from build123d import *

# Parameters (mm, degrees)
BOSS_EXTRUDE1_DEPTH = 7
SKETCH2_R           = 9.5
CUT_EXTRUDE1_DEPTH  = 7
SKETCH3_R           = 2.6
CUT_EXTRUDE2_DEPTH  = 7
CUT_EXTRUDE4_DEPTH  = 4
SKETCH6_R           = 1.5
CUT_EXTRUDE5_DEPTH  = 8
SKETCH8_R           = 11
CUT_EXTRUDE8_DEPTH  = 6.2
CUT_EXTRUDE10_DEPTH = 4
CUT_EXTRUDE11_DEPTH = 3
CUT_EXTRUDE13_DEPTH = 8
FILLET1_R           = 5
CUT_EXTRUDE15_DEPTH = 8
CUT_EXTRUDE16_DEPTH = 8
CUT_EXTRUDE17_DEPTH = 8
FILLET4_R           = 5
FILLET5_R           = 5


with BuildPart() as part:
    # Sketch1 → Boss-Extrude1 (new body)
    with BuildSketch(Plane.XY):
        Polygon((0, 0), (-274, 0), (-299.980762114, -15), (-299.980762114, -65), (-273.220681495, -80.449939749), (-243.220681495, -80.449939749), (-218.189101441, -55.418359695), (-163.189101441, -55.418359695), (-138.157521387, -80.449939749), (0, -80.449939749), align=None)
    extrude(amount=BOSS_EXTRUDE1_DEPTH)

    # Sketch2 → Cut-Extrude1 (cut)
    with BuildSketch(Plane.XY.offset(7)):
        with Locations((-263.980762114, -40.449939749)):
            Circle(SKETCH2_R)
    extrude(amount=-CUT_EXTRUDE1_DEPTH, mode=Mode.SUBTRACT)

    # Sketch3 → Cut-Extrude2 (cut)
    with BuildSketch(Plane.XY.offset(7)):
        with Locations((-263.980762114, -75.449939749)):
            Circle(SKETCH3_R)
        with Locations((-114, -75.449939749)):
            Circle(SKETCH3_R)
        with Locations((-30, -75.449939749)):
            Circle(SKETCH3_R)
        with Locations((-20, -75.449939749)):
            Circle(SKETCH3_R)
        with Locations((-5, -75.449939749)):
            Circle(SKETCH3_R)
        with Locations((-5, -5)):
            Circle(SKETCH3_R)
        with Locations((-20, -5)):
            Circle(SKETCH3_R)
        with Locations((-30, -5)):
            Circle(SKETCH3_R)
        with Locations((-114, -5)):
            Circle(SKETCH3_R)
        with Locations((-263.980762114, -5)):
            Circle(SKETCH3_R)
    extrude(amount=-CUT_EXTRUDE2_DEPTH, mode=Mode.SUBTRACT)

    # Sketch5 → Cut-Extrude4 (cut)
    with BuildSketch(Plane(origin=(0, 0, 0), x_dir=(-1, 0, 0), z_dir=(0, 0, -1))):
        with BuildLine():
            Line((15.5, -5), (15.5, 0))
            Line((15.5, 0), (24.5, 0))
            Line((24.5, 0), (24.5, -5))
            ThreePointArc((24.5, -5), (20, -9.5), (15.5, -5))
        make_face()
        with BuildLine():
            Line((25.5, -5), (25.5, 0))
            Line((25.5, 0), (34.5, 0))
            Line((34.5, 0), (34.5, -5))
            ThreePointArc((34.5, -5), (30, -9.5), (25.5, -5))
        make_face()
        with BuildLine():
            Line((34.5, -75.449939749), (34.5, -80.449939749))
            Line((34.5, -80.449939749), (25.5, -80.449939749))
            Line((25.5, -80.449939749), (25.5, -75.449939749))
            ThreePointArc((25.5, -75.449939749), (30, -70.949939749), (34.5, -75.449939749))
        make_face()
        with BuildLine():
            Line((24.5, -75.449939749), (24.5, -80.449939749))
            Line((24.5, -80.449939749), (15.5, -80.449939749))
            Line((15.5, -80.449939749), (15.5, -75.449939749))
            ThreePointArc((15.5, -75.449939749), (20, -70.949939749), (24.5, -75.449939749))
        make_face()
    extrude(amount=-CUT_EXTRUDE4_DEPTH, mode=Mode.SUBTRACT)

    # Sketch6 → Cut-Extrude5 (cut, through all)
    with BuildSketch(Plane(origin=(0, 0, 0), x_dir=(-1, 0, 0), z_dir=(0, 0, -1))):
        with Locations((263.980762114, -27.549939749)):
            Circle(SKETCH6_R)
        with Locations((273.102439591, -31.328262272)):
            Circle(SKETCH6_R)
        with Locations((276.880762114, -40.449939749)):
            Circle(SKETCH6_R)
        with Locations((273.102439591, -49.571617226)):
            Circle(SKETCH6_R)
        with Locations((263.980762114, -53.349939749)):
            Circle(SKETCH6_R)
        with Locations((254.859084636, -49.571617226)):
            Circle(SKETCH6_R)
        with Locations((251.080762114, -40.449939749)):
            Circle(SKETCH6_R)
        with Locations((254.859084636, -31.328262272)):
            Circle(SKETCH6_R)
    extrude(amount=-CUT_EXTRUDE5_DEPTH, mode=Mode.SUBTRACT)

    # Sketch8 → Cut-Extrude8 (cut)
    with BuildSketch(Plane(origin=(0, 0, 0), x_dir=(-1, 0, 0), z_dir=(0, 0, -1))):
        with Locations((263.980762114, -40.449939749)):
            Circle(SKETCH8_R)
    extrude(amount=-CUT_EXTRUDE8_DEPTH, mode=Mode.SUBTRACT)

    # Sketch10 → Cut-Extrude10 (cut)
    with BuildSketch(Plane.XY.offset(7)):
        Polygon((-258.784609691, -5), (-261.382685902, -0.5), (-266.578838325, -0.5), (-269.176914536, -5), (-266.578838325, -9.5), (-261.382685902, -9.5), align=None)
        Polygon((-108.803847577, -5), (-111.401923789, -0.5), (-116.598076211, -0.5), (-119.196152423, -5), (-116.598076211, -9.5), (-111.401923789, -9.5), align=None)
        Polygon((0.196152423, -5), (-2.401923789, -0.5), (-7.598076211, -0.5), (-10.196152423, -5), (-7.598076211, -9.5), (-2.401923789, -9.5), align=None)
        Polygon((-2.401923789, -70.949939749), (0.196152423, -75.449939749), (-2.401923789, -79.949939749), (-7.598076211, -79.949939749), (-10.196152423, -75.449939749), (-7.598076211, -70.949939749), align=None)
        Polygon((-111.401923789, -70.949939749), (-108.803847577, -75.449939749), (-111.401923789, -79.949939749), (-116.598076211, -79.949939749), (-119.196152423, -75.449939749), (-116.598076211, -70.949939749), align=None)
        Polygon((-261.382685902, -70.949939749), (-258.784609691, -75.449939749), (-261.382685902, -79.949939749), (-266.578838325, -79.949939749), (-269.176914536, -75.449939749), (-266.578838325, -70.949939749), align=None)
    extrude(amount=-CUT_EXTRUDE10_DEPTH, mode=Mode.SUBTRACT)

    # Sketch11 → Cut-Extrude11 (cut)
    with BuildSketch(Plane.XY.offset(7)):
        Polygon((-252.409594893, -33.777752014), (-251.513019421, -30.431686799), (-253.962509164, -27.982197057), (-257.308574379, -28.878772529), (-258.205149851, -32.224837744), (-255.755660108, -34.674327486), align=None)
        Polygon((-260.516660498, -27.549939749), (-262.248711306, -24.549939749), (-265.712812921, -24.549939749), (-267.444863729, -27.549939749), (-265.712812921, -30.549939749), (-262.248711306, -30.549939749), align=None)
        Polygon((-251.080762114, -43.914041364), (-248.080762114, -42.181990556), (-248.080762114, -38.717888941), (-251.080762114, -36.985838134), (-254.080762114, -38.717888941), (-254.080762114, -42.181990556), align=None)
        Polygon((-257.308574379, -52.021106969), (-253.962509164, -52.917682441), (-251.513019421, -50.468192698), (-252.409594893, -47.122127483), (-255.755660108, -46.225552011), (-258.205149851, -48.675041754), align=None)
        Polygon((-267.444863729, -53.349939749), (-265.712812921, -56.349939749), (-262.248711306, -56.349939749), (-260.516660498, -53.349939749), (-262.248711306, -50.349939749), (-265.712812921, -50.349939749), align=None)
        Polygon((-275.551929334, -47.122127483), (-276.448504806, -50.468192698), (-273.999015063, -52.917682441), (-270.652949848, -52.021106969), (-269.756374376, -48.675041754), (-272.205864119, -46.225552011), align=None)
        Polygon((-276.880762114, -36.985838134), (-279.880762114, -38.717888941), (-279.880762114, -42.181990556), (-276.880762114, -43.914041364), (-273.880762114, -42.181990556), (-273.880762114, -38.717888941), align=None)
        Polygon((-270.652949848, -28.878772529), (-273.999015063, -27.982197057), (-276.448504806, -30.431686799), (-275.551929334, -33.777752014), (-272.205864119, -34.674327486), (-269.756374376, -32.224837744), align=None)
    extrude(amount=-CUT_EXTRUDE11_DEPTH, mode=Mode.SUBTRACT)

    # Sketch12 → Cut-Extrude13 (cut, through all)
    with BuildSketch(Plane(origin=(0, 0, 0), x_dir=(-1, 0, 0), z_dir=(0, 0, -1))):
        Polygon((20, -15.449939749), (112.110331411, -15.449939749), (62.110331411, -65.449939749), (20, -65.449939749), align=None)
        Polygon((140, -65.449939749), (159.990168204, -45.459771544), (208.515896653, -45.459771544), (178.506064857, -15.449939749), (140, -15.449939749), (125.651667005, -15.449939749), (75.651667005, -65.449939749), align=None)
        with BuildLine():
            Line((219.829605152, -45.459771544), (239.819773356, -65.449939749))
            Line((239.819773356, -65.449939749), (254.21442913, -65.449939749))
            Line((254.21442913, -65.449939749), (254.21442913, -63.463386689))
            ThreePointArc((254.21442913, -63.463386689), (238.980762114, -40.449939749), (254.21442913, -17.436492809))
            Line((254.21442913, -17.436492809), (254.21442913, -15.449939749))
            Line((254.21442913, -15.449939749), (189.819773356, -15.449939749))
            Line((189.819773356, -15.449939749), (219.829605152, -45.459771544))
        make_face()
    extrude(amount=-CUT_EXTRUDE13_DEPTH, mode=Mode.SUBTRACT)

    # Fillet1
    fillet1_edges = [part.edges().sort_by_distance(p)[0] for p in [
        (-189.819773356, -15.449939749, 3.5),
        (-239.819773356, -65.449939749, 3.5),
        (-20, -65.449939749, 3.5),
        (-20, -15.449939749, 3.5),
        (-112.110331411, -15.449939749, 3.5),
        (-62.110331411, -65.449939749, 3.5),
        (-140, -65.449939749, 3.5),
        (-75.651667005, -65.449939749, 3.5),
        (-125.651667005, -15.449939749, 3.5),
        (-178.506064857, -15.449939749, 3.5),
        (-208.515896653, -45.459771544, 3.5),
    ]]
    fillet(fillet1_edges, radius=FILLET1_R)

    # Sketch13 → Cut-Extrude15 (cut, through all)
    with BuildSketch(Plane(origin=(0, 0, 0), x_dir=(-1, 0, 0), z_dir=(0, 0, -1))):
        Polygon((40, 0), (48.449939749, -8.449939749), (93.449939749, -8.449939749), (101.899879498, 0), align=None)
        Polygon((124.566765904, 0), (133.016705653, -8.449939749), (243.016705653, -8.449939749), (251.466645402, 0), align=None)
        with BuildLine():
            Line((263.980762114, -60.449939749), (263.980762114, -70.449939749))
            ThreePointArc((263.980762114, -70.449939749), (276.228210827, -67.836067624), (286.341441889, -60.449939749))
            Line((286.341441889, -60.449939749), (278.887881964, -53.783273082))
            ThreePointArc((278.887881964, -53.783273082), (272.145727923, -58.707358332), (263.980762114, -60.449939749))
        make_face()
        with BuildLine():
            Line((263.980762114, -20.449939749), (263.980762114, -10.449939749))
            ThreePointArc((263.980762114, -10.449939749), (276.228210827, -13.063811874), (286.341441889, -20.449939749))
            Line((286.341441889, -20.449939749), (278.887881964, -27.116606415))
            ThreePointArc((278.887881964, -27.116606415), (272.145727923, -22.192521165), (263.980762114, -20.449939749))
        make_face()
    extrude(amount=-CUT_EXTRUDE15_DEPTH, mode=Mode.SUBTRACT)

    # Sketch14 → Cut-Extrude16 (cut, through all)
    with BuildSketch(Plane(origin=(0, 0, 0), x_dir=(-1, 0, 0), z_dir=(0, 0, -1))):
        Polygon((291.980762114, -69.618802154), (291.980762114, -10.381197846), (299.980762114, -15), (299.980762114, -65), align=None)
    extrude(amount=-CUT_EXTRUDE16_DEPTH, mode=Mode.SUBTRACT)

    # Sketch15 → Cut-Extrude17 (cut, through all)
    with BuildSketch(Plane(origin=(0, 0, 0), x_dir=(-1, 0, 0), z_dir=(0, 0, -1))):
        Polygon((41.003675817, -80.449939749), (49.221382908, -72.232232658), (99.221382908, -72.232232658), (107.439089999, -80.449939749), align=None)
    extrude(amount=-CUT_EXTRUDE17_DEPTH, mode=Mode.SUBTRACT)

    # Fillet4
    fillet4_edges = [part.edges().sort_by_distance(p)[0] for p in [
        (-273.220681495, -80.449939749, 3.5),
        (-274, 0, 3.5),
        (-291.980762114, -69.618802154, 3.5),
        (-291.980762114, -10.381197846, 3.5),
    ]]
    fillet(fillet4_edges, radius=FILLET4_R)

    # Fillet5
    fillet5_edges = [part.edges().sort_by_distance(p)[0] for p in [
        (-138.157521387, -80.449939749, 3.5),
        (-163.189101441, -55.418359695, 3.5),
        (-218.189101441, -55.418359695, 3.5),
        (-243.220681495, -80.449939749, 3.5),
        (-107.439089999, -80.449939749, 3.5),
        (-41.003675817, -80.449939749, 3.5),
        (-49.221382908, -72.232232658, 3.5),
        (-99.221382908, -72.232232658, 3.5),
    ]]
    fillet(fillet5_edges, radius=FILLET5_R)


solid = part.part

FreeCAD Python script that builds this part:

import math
import FreeCAD as App
import Part
import Sketcher

V = App.Vector
Q = App.Units.Quantity


def edges_at(feature, points):
    """Names of the edges that pass closest to the given points."""
    edges = feature.Shape.Edges
    near = lambda p: min(range(len(edges)), key=lambda i: edges[i].distToShape(Part.Vertex(*p))[0])
    return sorted({f"Edge{near(p) + 1}" for p in points})

doc = App.newDocument("Part")
params = doc.addObject("Spreadsheet::Sheet", "Params")
for row, (alias, value) in enumerate([
    ("sketch1_width", "274 mm"),
    ("sketch1_width2", "30 mm"),
    ("sketch1_width3", "55 mm"),
    ("sketch1_height", "50 mm"),
    ("sketch1_length", "30 mm"),
    ("pad1_length", "7 mm"),
    ("sketch2_diameter", "19 mm"),
    ("pocket1_length", "7 mm"),
    ("sketch3_diameter", "5.2 mm"),
    ("pocket2_length", "7 mm"),
    ("sketch4_radius", "4.5 mm"),
    ("sketch4_height", "5 mm"),
    ("pocket3_length", "4 mm"),
    ("sketch5_diameter", "3 mm"),
    ("sketch6_diameter", "22 mm"),
    ("pocket5_length", "6.2 mm"),
    ("pocket6_length", "4 mm"),
    ("pocket7_length", "3 mm"),
    ("sketch9_radius", "25 mm"),
    ("sketch9_height", "50 mm"),
    ("fillet_radius", "5 mm"),
    ("sketch10_radius", "30 mm"),
    ("sketch10_radius2", "20 mm"),
    ("sketch10_width", "45 mm"),
    ("sketch10_width2", "110 mm"),
    ("sketch11_height", "50 mm"),
    ("sketch12_width", "50 mm"),
    ("fillet2_radius", "5 mm"),
    ("fillet3_radius", "5 mm"),
], start=1):
    params.set(f"A{row}", alias)
    params.set(f"B{row}", "=" + value)
    params.setAlias(f"B{row}", alias)

body = doc.addObject("PartDesign::Body", "Body")

sketch1 = body.newObject("Sketcher::SketchObject", "Sketch")
sketch1.AttachmentSupport = (doc.getObject("XY_Plane"), [""])
sketch1.MapMode = "FlatFace"
sketch1.addGeometry([
    Part.LineSegment(V(0, 0, 0), V(-274, 0, 0)),
    Part.LineSegment(V(-274, 0, 0), V(-300, -15, 0)),
    Part.LineSegment(V(-300, -15, 0), V(-300, -65, 0)),
    Part.LineSegment(V(-300, -65, 0), V(-273, -80, 0)),
    Part.LineSegment(V(-273, -80, 0), V(-243, -80, 0)),
    Part.LineSegment(V(-243, -80, 0), V(-218, -55, 0)),
    Part.LineSegment(V(-218, -55, 0), V(-163, -55, 0)),
    Part.LineSegment(V(-163, -55, 0), V(-138, -80, 0)),
    Part.LineSegment(V(-138, -80, 0), V(0, -80, 0)),
    Part.LineSegment(V(0, -80, 0), V(0, 0, 0)),
], False)
sketch1.addConstraint([
    Sketcher.Constraint("Coincident", 0, 2, 1, 1),
    Sketcher.Constraint("Coincident", 1, 2, 2, 1),
    Sketcher.Constraint("Coincident", 2, 2, 3, 1),
    Sketcher.Constraint("Coincident", 3, 2, 4, 1),
    Sketcher.Constraint("Coincident", 4, 2, 5, 1),
    Sketcher.Constraint("Coincident", 5, 2, 6, 1),
    Sketcher.Constraint("Coincident", 6, 2, 7, 1),
    Sketcher.Constraint("Coincident", 7, 2, 8, 1),
    Sketcher.Constraint("Coincident", 8, 2, 9, 1),
    Sketcher.Constraint("Coincident", 9, 2, 0, 1),
    Sketcher.Constraint("Horizontal", 0),
    Sketcher.Constraint("Vertical", 2),
    Sketcher.Constraint("Horizontal", 4),
    Sketcher.Constraint("Horizontal", 6),
    Sketcher.Constraint("Horizontal", 8),
    Sketcher.Constraint("Vertical", 9),
    Sketcher.Constraint("Coincident", 9, 2, -1, 1),
    Sketcher.Constraint("Perpendicular", 5, 7),
    Sketcher.Constraint("Horizontal", 4, 2, 7, 2),
    Sketcher.Constraint("Equal", 5, 7),
    Sketcher.Constraint("DistanceX", 0, 2, 0, 1, 274.0),
    Sketcher.Constraint("DistanceX", 4, 1, 4, 2, 30.0),
    Sketcher.Constraint("DistanceX", 6, 1, 6, 2, 55.0),
    Sketcher.Constraint("DistanceY", 2, 2, 2, 1, 50.0),
    Sketcher.Constraint("Angle", 1, Q("-150 deg")),
    Sketcher.Constraint("Angle", 3, Q("-30 deg")),
    Sketcher.Constraint("Distance", 1, 30.0),
    Sketcher.Constraint("Distance", 5, 35.4),
    Sketcher.Constraint("DistanceX", 8, 1, 8, 2, 138.157521),
])
sketch1.setExpression("Constraints[20]", "Params.sketch1_width")
sketch1.setExpression("Constraints[21]", "Params.sketch1_width2")
sketch1.setExpression("Constraints[22]", "Params.sketch1_width3")
sketch1.setExpression("Constraints[23]", "Params.sketch1_height")
sketch1.setExpression("Constraints[26]", "Params.sketch1_length")
pad1 = body.newObject("PartDesign::Pad", "Pad")
pad1.Profile = sketch1
pad1.setExpression("Length", "Params.pad1_length")

sketch2 = body.newObject("Sketcher::SketchObject", "Sketch001")
sketch2.AttachmentSupport = (doc.getObject("XY_Plane"), [""])
sketch2.MapMode = "FlatFace"
sketch2.AttachmentOffset = App.Placement(V(0, 0, 7), App.Rotation())
sketch2.addGeometry(Part.Circle(V(-264, -40, 0), V(0, 0, 1), 10), False)
sketch2.addConstraint([
    Sketcher.Constraint("Diameter", 0, 19.0),
    Sketcher.Constraint("DistanceY", 0, 3, -1, 1, 40.44994),
    Sketcher.Constraint("DistanceX", 0, 3, -1, 1, 263.980762),
])
sketch2.setExpression("Constraints[0]", "Params.sketch2_diameter")
pocket1 = body.newObject("PartDesign::Pocket", "Pocket")
pocket1.Profile = sketch2
pocket1.setExpression("Length", "Params.pocket1_length")

sketch3 = body.newObject("Sketcher::SketchObject", "Sketch002")
sketch3.AttachmentSupport = (doc.getObject("XY_Plane"), [""])
sketch3.MapMode = "FlatFace"
sketch3.AttachmentOffset = App.Placement(V(0, 0, 7), App.Rotation())
sketch3.addGeometry([
    Part.Circle(V(-264, -75.4, 0), V(0, 0, 1), 2.6),
    Part.Circle(V(-114, -75.4, 0), V(0, 0, 1), 2.6),
    Part.Circle(V(-30, -75.4, 0), V(0, 0, 1), 2.6),
    Part.Circle(V(-20, -75.4, 0), V(0, 0, 1), 2.6),
    Part.Circle(V(-5, -75.4, 0), V(0, 0, 1), 2.6),
    Part.Circle(V(-5, -5, 0), V(0, 0, 1), 2.6),
    Part.Circle(V(-20, -5, 0), V(0, 0, 1), 2.6),
    Part.Circle(V(-30, -5, 0), V(0, 0, 1), 2.6),
    Part.Circle(V(-114, -5, 0), V(0, 0, 1), 2.6),
    Part.Circle(V(-264, -5, 0), V(0, 0, 1), 2.6),
], False)
sketch3.addConstraint([
    Sketcher.Constraint("Equal", 0, 1),
    Sketcher.Constraint("Equal", 1, 2),
    Sketcher.Constraint("Equal", 2, 3),
    Sketcher.Constraint("Equal", 3, 4),
    Sketcher.Constraint("Equal", 4, 5),
    Sketcher.Constraint("Equal", 5, 6),
    Sketcher.Constraint("Equal", 6, 7),
    Sketcher.Constraint("Equal", 7, 8),
    Sketcher.Constraint("Equal", 8, 9),
    Sketcher.Constraint("Horizontal", 0, 3, 1, 3),
    Sketcher.Constraint("Horizontal", 1, 3, 2, 3),
    Sketcher.Constraint("Horizontal", 2, 3, 3, 3),
    Sketcher.Constraint("Horizontal", 3, 3, 4, 3),
    Sketcher.Constraint("Horizontal", 5, 3, 6, 3),
    Sketcher.Constraint("Horizontal", 6, 3, 7, 3),
    Sketcher.Constraint("Horizontal", 7, 3, 8, 3),
    Sketcher.Constraint("Horizontal", 8, 3, 9, 3),
    Sketcher.Constraint("Vertical", 4, 3, 5, 3),
    Sketcher.Constraint("Vertical", 3, 3, 6, 3),
    Sketcher.Constraint("Vertical", 2, 3, 7, 3),
    Sketcher.Constraint("Vertical", 1, 3, 8, 3),
    Sketcher.Constraint("Vertical", 0, 3, 9, 3),
    Sketcher.Constraint("Diameter", 0, 5.2),
    Sketcher.Constraint("DistanceX", 1, 3, -1, 1, 114.0),
    Sketcher.Constraint("DistanceX", 2, 3, -1, 1, 30.0),
    Sketcher.Constraint("DistanceX", 3, 3, -1, 1, 20.0),
    Sketcher.Constraint("DistanceX", 4, 3, -1, 1, 5.0),
    Sketcher.Constraint("DistanceY", 5, 3, -1, 1, 5.0),
    Sketcher.Constraint("DistanceY", 0, 3, -1, 1, 75.44994),
    Sketcher.Constraint("DistanceX", 0, 3, -1, 1, 263.980762),
])
sketch3.setExpression("Constraints[22]", "Params.sketch3_diameter")
pocket2 = body.newObject("PartDesign::Pocket", "Pocket001")
pocket2.Profile = sketch3
pocket2.setExpression("Length", "Params.pocket2_length")

sketch4 = body.newObject("Sketcher::SketchObject", "Sketch003")
sketch4.AttachmentSupport = (doc.getObject("XY_Plane"), [""])
sketch4.MapMode = "FlatFace"
sketch4.addGeometry([
    Part.LineSegment(V(-15.5, 0, 0), V(-15.5, -5, 0)),
    Part.ArcOfCircle(Part.Circle(V(-20, -5, 0), V(0, 0, 1), 4.5), math.radians(180), math.radians(360)),
    Part.LineSegment(V(-24.5, -5, 0), V(-24.5, 0, 0)),
    Part.LineSegment(V(-24.5, 0, 0), V(-15.5, 0, 0)),
    Part.LineSegment(V(-25.5, 0, 0), V(-25.5, -5, 0)),
    Part.ArcOfCircle(Part.Circle(V(-30, -5, 0), V(0, 0, 1), 4.5), math.radians(180), math.radians(360)),
    Part.LineSegment(V(-34.5, -5, 0), V(-34.5, 0, 0)),
    Part.LineSegment(V(-34.5, 0, 0), V(-25.5, 0, 0)),
    Part.LineSegment(V(-34.5, -80.4, 0), V(-34.5, -75.4, 0)),
    Part.ArcOfCircle(Part.Circle(V(-30, -75.4, 0), V(0, 0, 1), 4.5), math.radians(0), math.radians(180)),
    Part.LineSegment(V(-25.5, -75.4, 0), V(-25.5, -80.4, 0)),
    Part.LineSegment(V(-25.5, -80.4, 0), V(-34.5, -80.4, 0)),
    Part.LineSegment(V(-24.5, -80.4, 0), V(-24.5, -75.4, 0)),
    Part.ArcOfCircle(Part.Circle(V(-20, -75.4, 0), V(0, 0, 1), 4.5), math.radians(0), math.radians(180)),
    Part.LineSegment(V(-15.5, -75.4, 0), V(-15.5, -80.4, 0)),
    Part.LineSegment(V(-15.5, -80.4, 0), V(-24.5, -80.4, 0)),
], False)
sketch4.addConstraint([
    Sketcher.Constraint("Tangent", 0, 2, 1, 2),
    Sketcher.Constraint("Tangent", 1, 1, 2, 1),
    Sketcher.Constraint("Coincident", 2, 2, 3, 1),
    Sketcher.Constraint("Coincident", 3, 2, 0, 1),
    Sketcher.Constraint("Tangent", 4, 2, 5, 2),
    Sketcher.Constraint("Tangent", 5, 1, 6, 1),
    Sketcher.Constraint("Coincident", 6, 2, 7, 1),
    Sketcher.Constraint("Coincident", 7, 2, 4, 1),
    Sketcher.Constraint("Tangent", 8, 2, 9, 2),
    Sketcher.Constraint("Tangent", 9, 1, 10, 1),
    Sketcher.Constraint("Coincident", 10, 2, 11, 1),
    Sketcher.Constraint("Coincident", 11, 2, 8, 1),
    Sketcher.Constraint("Tangent", 12, 2, 13, 2),
    Sketcher.Constraint("Tangent", 13, 1, 14, 1),
    Sketcher.Constraint("Coincident", 14, 2, 15, 1),
    Sketcher.Constraint("Coincident", 15, 2, 12, 1),
    Sketcher.Constraint("Vertical", 0),
    Sketcher.Constraint("Vertical", 2),
    Sketcher.Constraint("Horizontal", 3),
    Sketcher.Constraint("Vertical", 4),
    Sketcher.Constraint("Vertical", 6),
    Sketcher.Constraint("Horizontal", 7),
    Sketcher.Constraint("Vertical", 8),
    Sketcher.Constraint("Vertical", 10),
    Sketcher.Constraint("Horizontal", 11),
    Sketcher.Constraint("Vertical", 12),
    Sketcher.Constraint("Vertical", 14),
    Sketcher.Constraint("Horizontal", 15),
    Sketcher.Constraint("Equal", 1, 5),
    Sketcher.Constraint("Equal", 5, 9),
    Sketcher.Constraint("Equal", 9, 13),
    Sketcher.Constraint("PointOnObject", 2, 2, -1),
    Sketcher.Constraint("PointOnObject", 6, 2, -1),
    Sketcher.Constraint("Horizontal", 1, 3, 5, 3),
    Sketcher.Constraint("Horizontal", 9, 3, 13, 3),
    Sketcher.Constraint("Horizontal", 11, 2, 14, 2),
    Sketcher.Constraint("Vertical", 5, 3, 9, 3),
    Sketcher.Constraint("Vertical", 1, 3, 13, 3),
    Sketcher.Constraint("Equal", 6, 8),
    Sketcher.Constraint("Radius", 1, 4.5),
    Sketcher.Constraint("DistanceY", 0, 2, 0, 1, 5.0),
    Sketcher.Constraint("DistanceX", 1, 3, -1, 1, 20.0),
    Sketcher.Constraint("DistanceX", 5, 3, -1, 1, 30.0),
    Sketcher.Constraint("DistanceY", 9, 3, -1, 1, 75.44994),
])
sketch4.setExpression("Constraints[39]", "Params.sketch4_radius")
sketch4.setExpression("Constraints[40]", "Params.sketch4_height")
pocket3 = body.newObject("PartDesign::Pocket", "Pocket002")
pocket3.Profile = sketch4
pocket3.setExpression("Length", "Params.pocket3_length")
pocket3.Reversed = True

sketch5 = body.newObject("Sketcher::SketchObject", "Sketch004")
sketch5.AttachmentSupport = (doc.getObject("XY_Plane"), [""])
sketch5.MapMode = "FlatFace"
sketch5.addGeometry([
    Part.Circle(V(-264, -27.5, 0), V(0, 0, 1), 1.5),
    Part.Circle(V(-273.1, -31.3, 0), V(0, 0, 1), 1.5),
    Part.Circle(V(-276.9, -40.4, 0), V(0, 0, 1), 1.5),
    Part.Circle(V(-273.1, -49.6, 0), V(0, 0, 1), 1.5),
    Part.Circle(V(-264, -53.3, 0), V(0, 0, 1), 1.5),
    Part.Circle(V(-254.9, -49.6, 0), V(0, 0, 1), 1.5),
    Part.Circle(V(-251.1, -40.4, 0), V(0, 0, 1), 1.5),
    Part.Circle(V(-254.9, -31.3, 0), V(0, 0, 1), 1.5),
], False)
sketch5.addConstraint([
    Sketcher.Constraint("Equal", 0, 1),
    Sketcher.Constraint("Equal", 1, 2),
    Sketcher.Constraint("Equal", 2, 3),
    Sketcher.Constraint("Equal", 3, 4),
    Sketcher.Constraint("Equal", 4, 5),
    Sketcher.Constraint("Equal", 5, 6),
    Sketcher.Constraint("Equal", 6, 7),
    Sketcher.Constraint("Horizontal", 3, 3, 5, 3),
    Sketcher.Constraint("Horizontal", 2, 3, 6, 3),
    Sketcher.Constraint("Horizontal", 1, 3, 7, 3),
    Sketcher.Constraint("Vertical", 1, 3, 3, 3),
    Sketcher.Constraint("Vertical", 0, 3, 4, 3),
    Sketcher.Constraint("Vertical", 5, 3, 7, 3),
    Sketcher.Constraint("Diameter", 0, 3.0),
    Sketcher.Constraint("DistanceX", 2, 3, 0, 3, 12.9),
    Sketcher.Constraint("DistanceY", 2, 3, 0, 3, 12.9),
    Sketcher.Constraint("DistanceY", 4, 3, 2, 3, 12.9),
    Sketcher.Constraint("DistanceX", 4, 3, 6, 3, 12.9),
    Sketcher.Constraint("DistanceY", 0, 3, -1, 1, 27.54994),
    Sketcher.Constraint("DistanceX", 1, 3, -1, 1, 273.10244),
    Sketcher.Constraint("DistanceX", 0, 3, -1, 1, 263.980762),
    Sketcher.Constraint("DistanceY", 1, 3, -1, 1, 31.328262),
    Sketcher.Constraint("DistanceY", 3, 3, -1, 1, 49.571617),
    Sketcher.Constraint("DistanceX", 5, 3, -1, 1, 254.859085),
])
sketch5.setExpression("Constraints[13]", "Params.sketch5_diameter")
pocket4 = body.newObject("PartDesign::Pocket", "Pocket003")
pocket4.Profile = sketch5
pocket4.Type = "ThroughAll"
pocket4.Reversed = True

sketch6 = body.newObject("Sketcher::SketchObject", "Sketch005")
sketch6.AttachmentSupport = (doc.getObject("XY_Plane"), [""])
sketch6.MapMode = "FlatFace"
sketch6.addGeometry(Part.Circle(V(-264, -40, 0), V(0, 0, 1), 11), False)
sketch6.addConstraint([
    Sketcher.Constraint("Diameter", 0, 22.0),
    Sketcher.Constraint("DistanceY", 0, 3, -1, 1, 40.44994),
    Sketcher.Constraint("DistanceX", 0, 3, -1, 1, 263.980762),
])
sketch6.setExpression("Constraints[0]", "Params.sketch6_diameter")
pocket5 = body.newObject("PartDesign::Pocket", "Pocket004")
pocket5.Profile = sketch6
pocket5.setExpression("Length", "Params.pocket5_length")
pocket5.Reversed = True

sketch7 = body.newObject("Sketcher::SketchObject", "Sketch006")
sketch7.AttachmentSupport = (doc.getObject("XY_Plane"), [""])
sketch7.MapMode = "FlatFace"
sketch7.AttachmentOffset = App.Placement(V(0, 0, 7), App.Rotation())
sketch7.addGeometry([
    Part.LineSegment(V(-259, -5, 0), V(-261, 0, 0)),
    Part.LineSegment(V(-261, 0, 0), V(-267, 0, 0)),
    Part.LineSegment(V(-267, 0, 0), V(-269, -5, 0)),
    Part.LineSegment(V(-269, -5, 0), V(-267, -10, 0)),
    Part.LineSegment(V(-267, -10, 0), V(-261, -10, 0)),
    Part.LineSegment(V(-261, -10, 0), V(-259, -5, 0)),
    Part.LineSegment(V(-109, -5, 0), V(-111, 0, 0)),
    Part.LineSegment(V(-111, 0, 0), V(-117, 0, 0)),
    Part.LineSegment(V(-117, 0, 0), V(-119, -5, 0)),
    Part.LineSegment(V(-119, -5, 0), V(-117, -10, 0)),
    Part.LineSegment(V(-117, -10, 0), V(-111, -10, 0)),
    Part.LineSegment(V(-111, -10, 0), V(-109, -5, 0)),
    Part.LineSegment(V(0, -5, 0), V(-2, 0, 0)),
    Part.LineSegment(V(-2, 0, 0), V(-8, 0, 0)),
    Part.LineSegment(V(-8, 0, 0), V(-10, -5, 0)),
    Part.LineSegment(V(-10, -5, 0), V(-8, -10, 0)),
    Part.LineSegment(V(-8, -10, 0), V(-2, -10, 0)),
    Part.LineSegment(V(-2, -10, 0), V(0, -5, 0)),
    Part.LineSegment(V(0, -75, 0), V(-2, -71, 0)),
    Part.LineSegment(V(-2, -71, 0), V(-8, -71, 0)),
    Part.LineSegment(V(-8, -71, 0), V(-10, -75, 0)),
    Part.LineSegment(V(-10, -75, 0), V(-8, -80, 0)),
    Part.LineSegment(V(-8, -80, 0), V(-2, -80, 0)),
    Part.LineSegment(V(-2, -80, 0), V(0, -75, 0)),
    Part.LineSegment(V(-109, -75, 0), V(-111, -71, 0)),
    Part.LineSegment(V(-111, -71, 0), V(-117, -71, 0)),
    Part.LineSegment(V(-117, -71, 0), V(-119, -75, 0)),
    Part.LineSegment(V(-119, -75, 0), V(-117, -80, 0)),
    Part.LineSegment(V(-117, -80, 0), V(-111, -80, 0)),
    Part.LineSegment(V(-111, -80, 0), V(-109, -75, 0)),
    Part.LineSegment(V(-259, -75, 0), V(-261, -71, 0)),
    Part.LineSegment(V(-261, -71, 0), V(-267, -71, 0)),
    Part.LineSegment(V(-267, -71, 0), V(-269, -75, 0)),
    Part.LineSegment(V(-269, -75, 0), V(-267, -80, 0)),
    Part.LineSegment(V(-267, -80, 0), V(-261, -80, 0)),
    Part.LineSegment(V(-261, -80, 0), V(-259, -75, 0)),
], False)
sketch7.addConstraint([
    Sketcher.Constraint("Coincident", 0, 2, 1, 1),
    Sketcher.Constraint("Coincident", 1, 2, 2, 1),
    Sketcher.Constraint("Coincident", 2, 2, 3, 1),
    Sketcher.Constraint("Coincident", 3, 2, 4, 1),
    Sketcher.Constraint("Coincident", 4, 2, 5, 1),
    Sketcher.Constraint("Coincident", 5, 2, 0, 1),
    Sketcher.Constraint("Coincident", 6, 2, 7, 1),
    Sketcher.Constraint("Coincident", 7, 2, 8, 1),
    Sketcher.Constraint("Coincident", 8, 2, 9, 1),
    Sketcher.Constraint("Coincident", 9, 2, 10, 1),
    Sketcher.Constraint("Coincident", 10, 2, 11, 1),
    Sketcher.Constraint("Coincident", 11, 2, 6, 1),
    Sketcher.Constraint("Coincident", 12, 2, 13, 1),
    Sketcher.Constraint("Coincident", 13, 2, 14, 1),
    Sketcher.Constraint("Coincident", 14, 2, 15, 1),
    Sketcher.Constraint("Coincident", 15, 2, 16, 1),
    Sketcher.Constraint("Coincident", 16, 2, 17, 1),
    Sketcher.Constraint("Coincident", 17, 2, 12, 1),
    Sketcher.Constraint("Coincident", 18, 2, 19, 1),
    Sketcher.Constraint("Coincident", 19, 2, 20, 1),
    Sketcher.Constraint("Coincident", 20, 2, 21, 1),
    Sketcher.Constraint("Coincident", 21, 2, 22, 1),
    Sketcher.Constraint("Coincident", 22, 2, 23, 1),
    Sketcher.Constraint("Coincident", 23, 2, 18, 1),
    Sketcher.Constraint("Coincident", 24, 2, 25, 1),
    Sketcher.Constraint("Coincident", 25, 2, 26, 1),
    Sketcher.Constraint("Coincident", 26, 2, 27, 1),
    Sketcher.Constraint("Coincident", 27, 2, 28, 1),
    Sketcher.Constraint("Coincident", 28, 2, 29, 1),
    Sketcher.Constraint("Coincident", 29, 2, 24, 1),
    Sketcher.Constraint("Coincident", 30, 2, 31, 1),
    Sketcher.Constraint("Coincident", 31, 2, 32, 1),
    Sketcher.Constraint("Coincident", 32, 2, 33, 1),
    Sketcher.Constraint("Coincident", 33, 2, 34, 1),
    Sketcher.Constraint("Coincident", 34, 2, 35, 1),
    Sketcher.Constraint("Coincident", 35, 2, 30, 1),
    Sketcher.Constraint("Horizontal", 1),
    Sketcher.Constraint("Horizontal", 4),
    Sketcher.Constraint("Horizontal", 7),
    Sketcher.Constraint("Horizontal", 10),
    Sketcher.Constraint("Horizontal", 13),
    Sketcher.Constraint("Horizontal", 16),
    Sketcher.Constraint("Horizontal", 19),
    Sketcher.Constraint("Horizontal", 22),
    Sketcher.Constraint("Horizontal", 25),
    Sketcher.Constraint("Horizontal", 28),
    Sketcher.Constraint("Horizontal", 31),
    Sketcher.Constraint("Horizontal", 34),
    Sketcher.Constraint("Parallel", 0, 3),
    Sketcher.Constraint("Parallel", 2, 5),
    Sketcher.Constraint("Parallel", 3, 6),
    Sketcher.Constraint("Parallel", 5, 8),
    Sketcher.Constraint("Parallel", 6, 9),
    Sketcher.Constraint("Parallel", 8, 11),
    Sketcher.Constraint("Parallel", 9, 12),
    Sketcher.Constraint("Parallel", 11, 14),
    Sketcher.Constraint("Parallel", 12, 15),
    Sketcher.Constraint("Parallel", 14, 17),
    Sketcher.Constraint("Parallel", 15, 18),
    Sketcher.Constraint("Parallel", 17, 20),
    Sketcher.Constraint("Parallel", 18, 21),
    Sketcher.Constraint("Parallel", 20, 23),
    Sketcher.Constraint("Parallel", 21, 24),
    Sketcher.Constraint("Parallel", 23, 26),
    Sketcher.Constraint("Parallel", 24, 27),
    Sketcher.Constraint("Parallel", 26, 29),
    Sketcher.Constraint("Parallel", 27, 30),
    Sketcher.Constraint("Parallel", 29, 32),
    Sketcher.Constraint("Parallel", 30, 33),
    Sketcher.Constraint("Parallel", 32, 35),
    Sketcher.Constraint("Horizontal", 2, 2, 5, 2),
    Sketcher.Constraint("Horizontal", 1, 2, 6, 2),
    Sketcher.Constraint("Horizontal", 5, 2, 8, 2),
    Sketcher.Constraint("Horizontal", 4, 2, 9, 2),
    Sketcher.Constraint("Horizontal", 8, 2, 11, 2),
    Sketcher.Constraint("Horizontal", 7, 2, 12, 2),
    Sketcher.Constraint("Horizontal", 11, 2, 14, 2),
    Sketcher.Constraint("Horizontal", 10, 2, 15, 2),
    Sketcher.Constraint("Horizontal", 14, 2, 17, 2),
    Sketcher.Constraint("Horizontal", 20, 2, 23, 2),
    Sketcher.Constraint("Horizontal", 19, 2, 24, 2),
    Sketcher.Constraint("Horizontal", 23, 2, 26, 2),
    Sketcher.Constraint("Horizontal", 22, 2, 27, 2),
    Sketcher.Constraint("Horizontal", 26, 2, 29, 2),
    Sketcher.Constraint("Horizontal", 25, 2, 30, 2),
    Sketcher.Constraint("Horizontal", 29, 2, 32, 2),
    Sketcher.Constraint("Horizontal", 28, 2, 33, 2),
    Sketcher.Constraint("Horizontal", 32, 2, 35, 2),
    Sketcher.Constraint("Vertical", 1, 2, 3, 2),
    Sketcher.Constraint("Vertical", 0, 2, 4, 2),
    Sketcher.Constraint("Vertical", 16, 2, 18, 2),
    Sketcher.Constraint("Vertical", 15, 2, 19, 2),
    Sketcher.Constraint("Vertical", 14, 2, 20, 2),
    Sketcher.Constraint("Vertical", 19, 2, 21, 2),
    Sketcher.Constraint("Vertical", 10, 2, 24, 2),
    Sketcher.Constraint("Vertical", 9, 2, 25, 2),
    Sketcher.Constraint("Vertical", 4, 2, 30, 2),
    Sketcher.Constraint("Vertical", 3, 2, 31, 2),
    Sketcher.Constraint("Equal", 4, 7),
    Sketcher.Constraint("Equal", 10, 13),
    Sketcher.Constraint("Angle", 0, Q("120 deg")),
    Sketcher.Constraint("DistanceY", 2, 2, -1, 1, 5.0),
    Sketcher.Constraint("DistanceY", 3, 2, 1, 2, 9.0),
    Sketcher.Constraint("DistanceX", 6, 2, 12, 2, 109.0),
    Sketcher.Constraint("DistanceX", 1, 2, 1, 1, 5.196152),
    Sketcher.Constraint("DistanceX", 1, 2, -1, 1, 266.578838),
    Sketcher.Constraint("DistanceY", 18, 2, -1, 1, 70.94994),
    Sketcher.Constraint("DistanceX", 0, 2, 7, 2, 144.78461),
])
pocket6 = body.newObject("PartDesign::Pocket", "Pocket005")
pocket6.Profile = sketch7
pocket6.setExpression("Length", "Params.pocket6_length")

sketch8 = body.newObject("Sketcher::SketchObject", "Sketch007")
sketch8.AttachmentSupport = (doc.getObject("XY_Plane"), [""])
sketch8.MapMode = "FlatFace"
sketch8.AttachmentOffset = App.Placement(V(0, 0, 7), App.Rotation())
sketch8.addGeometry([
    Part.LineSegment(V(-252.4, -33.8, 0), V(-251.5, -30.4, 0)),
    Part.LineSegment(V(-251.5, -30.4, 0), V(-254, -28, 0)),
    Part.LineSegment(V(-254, -28, 0), V(-257.3, -28.9, 0)),
    Part.LineSegment(V(-257.3, -28.9, 0), V(-258.2, -32.2, 0)),
    Part.LineSegment(V(-258.2, -32.2, 0), V(-255.8, -34.7, 0)),
    Part.LineSegment(V(-255.8, -34.7, 0), V(-252.4, -33.8, 0)),
    Part.LineSegment(V(-260.5, -27.5, 0), V(-262.2, -24.5, 0)),
    Part.LineSegment(V(-262.2, -24.5, 0), V(-265.7, -24.5, 0)),
    Part.LineSegment(V(-265.7, -24.5, 0), V(-267.4, -27.5, 0)),
    Part.LineSegment(V(-267.4, -27.5, 0), V(-265.7, -30.5, 0)),
    Part.LineSegment(V(-265.7, -30.5, 0), V(-262.2, -30.5, 0)),
    Part.LineSegment(V(-262.2, -30.5, 0), V(-260.5, -27.5, 0)),
    Part.LineSegment(V(-251.1, -43.9, 0), V(-248.1, -42.2, 0)),
    Part.LineSegment(V(-248.1, -42.2, 0), V(-248.1, -38.7, 0)),
    Part.LineSegment(V(-248.1, -38.7, 0), V(-251.1, -37, 0)),
    Part.LineSegment(V(-251.1, -37, 0), V(-254.1, -38.7, 0)),
    Part.LineSegment(V(-254.1, -38.7, 0), V(-254.1, -42.2, 0)),
    Part.LineSegment(V(-254.1, -42.2, 0), V(-251.1, -43.9, 0)),
    Part.LineSegment(V(-257.3, -52, 0), V(-254, -52.9, 0)),
    Part.LineSegment(V(-254, -52.9, 0), V(-251.5, -50.5, 0)),
    Part.LineSegment(V(-251.5, -50.5, 0), V(-252.4, -47.1, 0)),
    Part.LineSegment(V(-252.4, -47.1, 0), V(-255.8, -46.2, 0)),
    Part.LineSegment(V(-255.8, -46.2, 0), V(-258.2, -48.7, 0)),
    Part.LineSegment(V(-258.2, -48.7, 0), V(-257.3, -52, 0)),
    Part.LineSegment(V(-267.4, -53.3, 0), V(-265.7, -56.3, 0)),
    Part.LineSegment(V(-265.7, -56.3, 0), V(-262.2, -56.3, 0)),
    Part.LineSegment(V(-262.2, -56.3, 0), V(-260.5, -53.3, 0)),
    Part.LineSegment(V(-260.5, -53.3, 0), V(-262.2, -50.3, 0)),
    Part.LineSegment(V(-262.2, -50.3, 0), V(-265.7, -50.3, 0)),
    Part.LineSegment(V(-265.7, -50.3, 0), V(-267.4, -53.3, 0)),
    Part.LineSegment(V(-275.6, -47.1, 0), V(-276.4, -50.5, 0)),
    Part.LineSegment(V(-276.4, -50.5, 0), V(-274, -52.9, 0)),
    Part.LineSegment(V(-274, -52.9, 0), V(-270.7, -52, 0)),
    Part.LineSegment(V(-270.7, -52, 0), V(-269.8, -48.7, 0)),
    Part.LineSegment(V(-269.8, -48.7, 0), V(-272.2, -46.2, 0)),
    Part.LineSegment(V(-272.2, -46.2, 0), V(-275.6, -47.1, 0)),
    Part.LineSegment(V(-276.9, -37, 0), V(-279.9, -38.7, 0)),
    Part.LineSegment(V(-279.9, -38.7, 0), V(-279.9, -42.2, 0)),
    Part.LineSegment(V(-279.9, -42.2, 0), V(-276.9, -43.9, 0)),
    Part.LineSegment(V(-276.9, -43.9, 0), V(-273.9, -42.2, 0)),
    Part.LineSegment(V(-273.9, -42.2, 0), V(-273.9, -38.7, 0)),
    Part.LineSegment(V(-273.9, -38.7, 0), V(-276.9, -37, 0)),
    Part.LineSegment(V(-270.7, -28.9, 0), V(-274, -28, 0)),
    Part.LineSegment(V(-274, -28, 0), V(-276.4, -30.4, 0)),
    Part.LineSegment(V(-276.4, -30.4, 0), V(-275.6, -33.8, 0)),
    Part.LineSegment(V(-275.6, -33.8, 0), V(-272.2, -34.7, 0)),
    Part.LineSegment(V(-272.2, -34.7, 0), V(-269.8, -32.2, 0)),
    Part.LineSegment(V(-269.8, -32.2, 0), V(-270.7, -28.9, 0)),
], False)
sketch8.addConstraint([
    Sketcher.Constraint("Coincident", 0, 2, 1, 1),
    Sketcher.Constraint("Coincident", 1, 2, 2, 1),
    Sketcher.Constraint("Coincident", 2, 2, 3, 1),
    Sketcher.Constraint("Coincident", 3, 2, 4, 1),
    Sketcher.Constraint("Coincident", 4, 2, 5, 1),
    Sketcher.Constraint("Coincident", 5, 2, 0, 1),
    Sketcher.Constraint("Coincident", 6, 2, 7, 1),
    Sketcher.Constraint("Coincident", 7, 2, 8, 1),
    Sketcher.Constraint("Coincident", 8, 2, 9, 1),
    Sketcher.Constraint("Coincident", 9, 2, 10, 1),
    Sketcher.Constraint("Coincident", 10, 2, 11, 1),
    Sketcher.Constraint("Coincident", 11, 2, 6, 1),
    Sketcher.Constraint("Coincident", 12, 2, 13, 1),
    Sketcher.Constraint("Coincident", 13, 2, 14, 1),
    Sketcher.Constraint("Coincident", 14, 2, 15, 1),
    Sketcher.Constraint("Coincident", 15, 2, 16, 1),
    Sketcher.Constraint("Coincident", 16, 2, 17, 1),
    Sketcher.Constraint("Coincident", 17, 2, 12, 1),
    Sketcher.Constraint("Coincident", 18, 2, 19, 1),
    Sketcher.Constraint("Coincident", 19, 2, 20, 1),
    Sketcher.Constraint("Coincident", 20, 2, 21, 1),
    Sketcher.Constraint("Coincident", 21, 2, 22, 1),
    Sketcher.Constraint("Coincident", 22, 2, 23, 1),
    Sketcher.Constraint("Coincident", 23, 2, 18, 1),
    Sketcher.Constraint("Coincident", 24, 2, 25, 1),
    Sketcher.Constraint("Coincident", 25, 2, 26, 1),
    Sketcher.Constraint("Coincident", 26, 2, 27, 1),
    Sketcher.Constraint("Coincident", 27, 2, 28, 1),
    Sketcher.Constraint("Coincident", 28, 2, 29, 1),
    Sketcher.Constraint("Coincident", 29, 2, 24, 1),
    Sketcher.Constraint("Coincident", 30, 2, 31, 1),
    Sketcher.Constraint("Coincident", 31, 2, 32, 1),
    Sketcher.Constraint("Coincident", 32, 2, 33, 1),
    Sketcher.Constraint("Coincident", 33, 2, 34, 1),
    Sketcher.Constraint("Coincident", 34, 2, 35, 1),
    Sketcher.Constraint("Coincident", 35, 2, 30, 1),
    Sketcher.Constraint("Coincident", 36, 2, 37, 1),
    Sketcher.Constraint("Coincident", 37, 2, 38, 1),
    Sketcher.Constraint("Coincident", 38, 2, 39, 1),
    Sketcher.Constraint("Coincident", 39, 2, 40, 1),
    Sketcher.Constraint("Coincident", 40, 2, 41, 1),
    Sketcher.Constraint("Coincident", 41, 2, 36, 1),
    Sketcher.Constraint("Coincident", 42, 2, 43, 1),
    Sketcher.Constraint("Coincident", 43, 2, 44, 1),
    Sketcher.Constraint("Coincident", 44, 2, 45, 1),
    Sketcher.Constraint("Coincident", 45, 2, 46, 1),
    Sketcher.Constraint("Coincident", 46, 2, 47, 1),
    Sketcher.Constraint("Coincident", 47, 2, 42, 1),
    Sketcher.Constraint("Horizontal", 7),
    Sketcher.Constraint("Horizontal", 10),
    Sketcher.Constraint("Vertical", 13),
    Sketcher.Constraint("Vertical", 16),
    Sketcher.Constraint("Horizontal", 25),
    Sketcher.Constraint("Horizontal", 28),
    Sketcher.Constraint("Vertical", 37),
    Sketcher.Constraint("Vertical", 40),
    Sketcher.Constraint("Parallel", 0, 3),
    Sketcher.Constraint("Parallel", 1, 4),
    Sketcher.Constraint("Parallel", 2, 5),
    Sketcher.Constraint("Parallel", 6, 9),
    Sketcher.Constraint("Parallel", 8, 11),
    Sketcher.Constraint("Perpendicular", 9, 12),
    Sketcher.Constraint("Perpendicular", 11, 14),
    Sketcher.Constraint("Parallel", 12, 15),
    Sketcher.Constraint("Parallel", 14, 17),
    Sketcher.Constraint("Perpendicular", 3, 18),
    Sketcher.Constraint("Perpendicular", 4, 19),
    Sketcher.Constraint("Perpendicular", 5, 20),
    Sketcher.Constraint("Parallel", 18, 21),
    Sketcher.Constraint("Parallel", 19, 22),
    Sketcher.Constraint("Parallel", 20, 23),
    Sketcher.Constraint("Perpendicular", 15, 24),
    Sketcher.Constraint("Perpendicular", 17, 26),
    Sketcher.Constraint("Parallel", 24, 27),
    Sketcher.Constraint("Parallel", 26, 29),
    Sketcher.Constraint("Perpendicular", 21, 30),
    Sketcher.Constraint("Perpendicular", 22, 31),
    Sketcher.Constraint("Perpendicular", 23, 32),
    Sketcher.Constraint("Parallel", 30, 33),
    Sketcher.Constraint("Parallel", 31, 34),
    Sketcher.Constraint("Parallel", 32, 35),
    Sketcher.Constraint("Perpendicular", 27, 36),
    Sketcher.Constraint("Perpendicular", 29, 38),
    Sketcher.Constraint("Parallel", 36, 39),
    Sketcher.Constraint("Parallel", 38, 41),
    Sketcher.Constraint("Perpendicular", 33, 42),
    Sketcher.Constraint("Perpendicular", 34, 43),
    Sketcher.Constraint("Perpendicular", 35, 44),
    Sketcher.Constraint("Parallel", 42, 45),
    Sketcher.Constraint("Parallel", 43, 46),
    Sketcher.Constraint("Parallel", 44, 47),
    Sketcher.Constraint("Horizontal", 8, 2, 11, 2),
    Sketcher.Constraint("Horizontal", 13, 2, 15, 2),
    Sketcher.Constraint("Horizontal", 12, 2, 16, 2),
    Sketcher.Constraint("Horizontal", 26, 2, 29, 2),
    Sketcher.Constraint("Horizontal", 19, 2, 30, 2),
    Sketcher.Constraint("Horizontal", 18, 2, 31, 2),
    Sketcher.Constraint("Horizontal", 23, 2, 32, 2),
    Sketcher.Constraint("Horizontal", 22, 2, 33, 2),
    Sketcher.Constraint("Horizontal", 21, 2, 34, 2),
    Sketcher.Constraint("Horizontal", 15, 2, 36, 2),
    Sketcher.Constraint("Horizontal", 16, 2, 37, 2),
    Sketcher.Constraint("Horizontal", 17, 2, 38, 2),
    Sketcher.Constraint("Horizontal", 37, 2, 39, 2),
    Sketcher.Constraint("Horizontal", 36, 2, 40, 2),
    Sketcher.Constraint("Horizontal", 1, 2, 42, 2),
    Sketcher.Constraint("Horizontal", 0, 2, 43, 2),
    Sketcher.Constraint("Horizontal", 5, 2, 44, 2),
    Sketcher.Constraint("Horizontal", 4, 2, 45, 2),
    Sketcher.Constraint("Horizontal", 3, 2, 46, 2),
    Sketcher.Constraint("Vertical", 7, 2, 9, 2),
    Sketcher.Constraint("Vertical", 6, 2, 10, 2),
    Sketcher.Constraint("Vertical", 1, 2, 18, 2),
    Sketcher.Constraint("Vertical", 0, 2, 19, 2),
    Sketcher.Constraint("Vertical", 5, 2, 20, 2),
    Sketcher.Constraint("Vertical", 4, 2, 21, 2),
    Sketcher.Constraint("Vertical", 3, 2, 22, 2),
    Sketcher.Constraint("Vertical", 9, 2, 24, 2),
    Sketcher.Constraint("Vertical", 10, 2, 25, 2),
    Sketcher.Constraint("Vertical", 11, 2, 26, 2),
    Sketcher.Constraint("Vertical", 25, 2, 27, 2),
    Sketcher.Constraint("Vertical", 31, 2, 42, 2),
    Sketcher.Constraint("Vertical", 30, 2, 43, 2),
    Sketcher.Constraint("Vertical", 35, 2, 44, 2),
    Sketcher.Constraint("Equal", 28, 13),
    Sketcher.Constraint("Equal", 0, 1),
    Sketcher.Constraint("Equal", 1, 2),
    Sketcher.Constraint("Equal", 2, 3),
    Sketcher.Constraint("Equal", 5, 6),
    Sketcher.Constraint("Equal", 11, 12),
    Sketcher.Constraint("Angle", 0, Q("75 deg")),
    Sketcher.Constraint("Angle", 6, Q("120 deg")),
    Sketcher.Constraint("DistanceY", 8, 2, 7, 2, 3.0),
    Sketcher.Constraint("DistanceX", 7, 2, 7, 1, 3.464102),
    Sketcher.Constraint("DistanceX", 0, 2, -1, 1, 251.513019),
    Sketcher.Constraint("DistanceX", 6, 2, -1, 1, 262.248711),
    Sketcher.Constraint("DistanceY", 6, 2, -1, 1, 24.54994),
    Sketcher.Constraint("DistanceY", 12, 2, -1, 1, 42.181991),
    Sketcher.Constraint("DistanceY", 22, 2, -1, 1, 48.675042),
    Sketcher.Constraint("DistanceY", 24, 2, -1, 1, 56.34994),
    Sketcher.Constraint("DistanceX", 32, 2, -1, 1, 270.65295),
    Sketcher.Constraint("DistanceY", 12, 2, 5, 2, 8.404239),
    Sketcher.Constraint("DistanceX", 12, 2, -1, 1, 248.080762),
    Sketcher.Constraint("DistanceX", 36, 2, -1, 1, 279.880762),
])
pocket7 = body.newObject("PartDesign::Pocket", "Pocket006")
pocket7.Profile = sketch8
pocket7.setExpression("Length", "Params.pocket7_length")

sketch9 = body.newObject("Sketcher::SketchObject", "Sketch008")
sketch9.AttachmentSupport = (doc.getObject("XY_Plane"), [""])
sketch9.MapMode = "FlatFace"
sketch9.addGeometry([
    Part.LineSegment(V(-112.1, -15.4, 0), V(-20, -15.4, 0)),
    Part.LineSegment(V(-20, -15.4, 0), V(-20, -65.4, 0)),
    Part.LineSegment(V(-20, -65.4, 0), V(-62.1, -65.4, 0)),
    Part.LineSegment(V(-62.1, -65.4, 0), V(-112.1, -15.4, 0)),
    Part.LineSegment(V(-140, -65.4, 0), V(-160, -45.5, 0)),
    Part.LineSegment(V(-160, -45.5, 0), V(-208.5, -45.5, 0)),
    Part.LineSegment(V(-208.5, -45.5, 0), V(-178.5, -15.4, 0)),
    Part.LineSegment(V(-178.5, -15.4, 0), V(-125.7, -15.4, 0)),
    Part.LineSegment(V(-125.7, -15.4, 0), V(-75.7, -65.4, 0)),
    Part.LineSegment(V(-75.7, -65.4, 0), V(-140, -65.4, 0)),
    Part.LineSegment(V(-219.8, -45.5, 0), V(-239.8, -65.4, 0)),
    Part.LineSegment(V(-239.8, -65.4, 0), V(-254.2, -65.4, 0)),
    Part.LineSegment(V(-254.2, -65.4, 0), V(-254.2, -63.5, 0)),
    Part.ArcOfCircle(Part.Circle(V(-264, -40.4, 0), V(0, 0, 1), 25), math.radians(-67), math.radians(67)),
    Part.LineSegment(V(-254.2, -17.4, 0), V(-254.2, -15.4, 0)),
    Part.LineSegment(V(-254.2, -15.4, 0), V(-189.8, -15.4, 0)),
    Part.LineSegment(V(-189.8, -15.4, 0), V(-219.8, -45.5, 0)),
], False)
sketch9.addConstraint([
    Sketcher.Constraint("Coincident", 0, 2, 1, 1),
    Sketcher.Constraint("Coincident", 1, 2, 2, 1),
    Sketcher.Constraint("Coincident", 2, 2, 3, 1),
    Sketcher.Constraint("Coincident", 3, 2, 0, 1),
    Sketcher.Constraint("Coincident", 4, 2, 5, 1),
    Sketcher.Constraint("Coincident", 5, 2, 6, 1),
    Sketcher.Constraint("Coincident", 6, 2, 7, 1),
    Sketcher.Constraint("Coincident", 7, 2, 8, 1),
    Sketcher.Constraint("Coincident", 8, 2, 9, 1),
    Sketcher.Constraint("Coincident", 9, 2, 4, 1),
    Sketcher.Constraint("Coincident", 10, 2, 11, 1),
    Sketcher.Constraint("Coincident", 11, 2, 12, 1),
    Sketcher.Constraint("Coincident", 12, 2, 13, 1),
    Sketcher.Constraint("Coincident", 13, 2, 14, 1),
    Sketcher.Constraint("Coincident", 14, 2, 15, 1),
    Sketcher.Constraint("Coincident", 15, 2, 16, 1),
    Sketcher.Constraint("Coincident", 16, 2, 10, 1),
    Sketcher.Constraint("Horizontal", 0),
    Sketcher.Constraint("Vertical", 1),
    Sketcher.Constraint("Horizontal", 2),
    Sketcher.Constraint("Horizontal", 5),
    Sketcher.Constraint("Horizontal", 7),
    Sketcher.Constraint("Horizontal", 9),
    Sketcher.Constraint("Horizontal", 11),
    Sketcher.Constraint("Vertical", 12),
    Sketcher.Constraint("Vertical", 14),
    Sketcher.Constraint("Horizontal", 15),
    Sketcher.Constraint("Parallel", 3, 4),
    Sketcher.Constraint("Perpendicular", 4, 6),
    Sketcher.Constraint("Perpendicular", 6, 8),
    Sketcher.Constraint("Perpendicular", 8, 10),
    Sketcher.Constraint("Parallel", 10, 16),
    Sketcher.Constraint("Horizontal", 3, 2, 6, 2),
    Sketcher.Constraint("Horizontal", 2, 2, 8, 2),
    Sketcher.Constraint("Horizontal", 9, 2, 10, 2),
    Sketcher.Constraint("Horizontal", 7, 2, 14, 2),
    Sketcher.Constraint("Horizontal", 5, 2, 16, 2),
    Sketcher.Constraint("Vertical", 12, 2, 13, 2),
    Sketcher.Constraint("Equal", 12, 14),
    Sketcher.Constraint("Equal", 4, 10),
    Sketcher.Constraint("Radius", 13, 25.0),
    Sketcher.Constraint("DistanceY", 1, 2, 1, 1, 50.0),
    Sketcher.Constraint("DistanceX", 0, 2, -1, 1, 20.0),
    Sketcher.Constraint("DistanceX", 9, 2, -1, 1, 140.0),
    Sketcher.Constraint("DistanceX", 0, 1, 0, 2, 92.110331),
    Sketcher.Constraint("DistanceX", 5, 2, 5, 1, 48.525728),
    Sketcher.Constraint("DistanceX", 4, 2, 7, 2, 34.338501),
    Sketcher.Constraint("Distance", 6, 42.440311),
    Sketcher.Constraint("DistanceX", 11, 2, 11, 1, 14.394656),
    Sketcher.Constraint("DistanceY", 12, 1, 12, 2, 1.986553),
    Sketcher.Constraint("DistanceY", 13, 3, -1, 1, 40.44994),
    Sketcher.Constraint("DistanceX", 11, 2, -1, 1, 254.214429),
])
sketch9.setExpression("Constraints[40]", "Params.sketch9_radius")
sketch9.setExpression("Constraints[41]", "Params.sketch9_height")
pocket8 = body.newObject("PartDesign::Pocket", "Pocket007")
pocket8.Profile = sketch9
pocket8.Type = "ThroughAll"
pocket8.Reversed = True
doc.recompute()

fillet = body.newObject("PartDesign::Fillet", "Fillet")
fillet.Base = (pocket8, edges_at(pocket8, [
    (-189.82, -15.45, 3.5),
    (-239.82, -65.45, 3.5),
    (-20, -65.45, 3.5),
    (-20, -15.45, 3.5),
    (-112.11, -15.45, 3.5),
    (-62.11, -65.45, 3.5),
    (-140, -65.45, 3.5),
    (-75.652, -65.45, 3.5),
    (-125.652, -15.45, 3.5),
    (-178.506, -15.45, 3.5),
    (-208.516, -45.46, 3.5),
]))
fillet.setExpression("Radius", "Params.fillet_radius")

sketch10 = body.newObject("Sketcher::SketchObject", "Sketch009")
sketch10.AttachmentSupport = (doc.getObject("XY_Plane"), [""])
sketch10.MapMode = "FlatFace"
sketch10.addGeometry([
    Part.LineSegment(V(-40, 0, 0), V(-48, -8, 0)),
    Part.LineSegment(V(-48, -8, 0), V(-93, -8, 0)),
    Part.LineSegment(V(-93, -8, 0), V(-102, 0, 0)),
    Part.LineSegment(V(-102, 0, 0), V(-40, 0, 0)),
    Part.LineSegment(V(-125, 0, 0), V(-133, -8, 0)),
    Part.LineSegment(V(-133, -8, 0), V(-243, -8, 0)),
    Part.LineSegment(V(-243, -8, 0), V(-251, 0, 0)),
    Part.LineSegment(V(-251, 0, 0), V(-125, 0, 0)),
    Part.LineSegment(V(-264, -60, 0), V(-264, -70, 0)),
    Part.ArcOfCircle(Part.Circle(V(-264, -40, 0), V(0, 0, 1), 30), math.radians(-138), math.radians(-90)),
    Part.LineSegment(V(-286, -60, 0), V(-279, -54, 0)),
    Part.ArcOfCircle(Part.Circle(V(-264, -40, 0), V(0, 0, 1), 20), math.radians(-138), math.radians(-90)),
    Part.LineSegment(V(-264, -10, 0), V(-264, -20, 0)),
    Part.ArcOfCircle(Part.Circle(V(-264, -40, 0), V(0, 0, 1), 20), math.radians(90), math.radians(138)),
    Part.LineSegment(V(-279, -27, 0), V(-286, -20, 0)),
    Part.ArcOfCircle(Part.Circle(V(-264, -40, 0), V(0, 0, 1), 30), math.radians(90), math.radians(138)),
], False)
sketch10.addConstraint([
    Sketcher.Constraint("Coincident", 0, 2, 1, 1),
    Sketcher.Constraint("Coincident", 1, 2, 2, 1),
    Sketcher.Constraint("Coincident", 2, 2, 3, 1),
    Sketcher.Constraint("Coincident", 3, 2, 0, 1),
    Sketcher.Constraint("Coincident", 4, 2, 5, 1),
    Sketcher.Constraint("Coincident", 5, 2, 6, 1),
    Sketcher.Constraint("Coincident", 6, 2, 7, 1),
    Sketcher.Constraint("Coincident", 7, 2, 4, 1),
    Sketcher.Constraint("Coincident", 8, 2, 9, 2),
    Sketcher.Constraint("Coincident", 9, 1, 10, 1),
    Sketcher.Constraint("Coincident", 10, 2, 11, 1),
    Sketcher.Constraint("Coincident", 11, 2, 8, 1),
    Sketcher.Constraint("Coincident", 12, 2, 13, 1),
    Sketcher.Constraint("Coincident", 13, 2, 14, 1),
    Sketcher.Constraint("Coincident", 14, 2, 15, 2),
    Sketcher.Constraint("Coincident", 15, 1, 12, 1),
    Sketcher.Constraint("Horizontal", 1),
    Sketcher.Constraint("Horizontal", 3),
    Sketcher.Constraint("Horizontal", 5),
    Sketcher.Constraint("Horizontal", 7),
    Sketcher.Constraint("Vertical", 8),
    Sketcher.Constraint("Vertical", 12),
    Sketcher.Constraint("Coincident", 11, 3, 9, 3),
    Sketcher.Constraint("Coincident", 13, 3, 9, 3),
    Sketcher.Constraint("Coincident", 15, 3, 9, 3),
    Sketcher.Constraint("Equal", 11, 13),
    Sketcher.Constraint("Equal", 9, 15),
    Sketcher.Constraint("PointOnObject", 2, 2, -1),
    Sketcher.Constraint("PointOnObject", 6, 2, -1),
    Sketcher.Constraint("Perpendicular", 0, 2),
    Sketcher.Constraint("Perpendicular", 2, 4),
    Sketcher.Constraint("Perpendicular", 4, 6),
    Sketcher.Constraint("Horizontal", 1, 2, 4, 2),
    Sketcher.Constraint("Horizontal", 9, 1, 11, 2),
    Sketcher.Constraint("Horizontal", 12, 2, 14, 2),
    Sketcher.Constraint("Vertical", 15, 3, 8, 2),
    Sketcher.Constraint("Vertical", 11, 2, 12, 2),
    Sketcher.Constraint("Vertical", 10, 2, 13, 2),
    Sketcher.Constraint("Equal", 0, 2),
    Sketcher.Constraint("Radius", 9, 30.0),
    Sketcher.Constraint("Radius", 11, 20.0),
    Sketcher.Constraint("DistanceX", 1, 2, 1, 1, 45.0),
    Sketcher.Constraint("DistanceX", 5, 2, 5, 1, 110.0),
    Sketcher.Constraint("DistanceX", 3, 2, -1, 1, 40.0),
    Sketcher.Constraint("DistanceY", 9, 3, 0, 2, 32.0),
    Sketcher.Constraint("DistanceX", 3, 1, 3, 2, 61.899879),
    Sketcher.Constraint("DistanceX", 9, 1, -1, 1, 286.341442),
    Sketcher.Constraint("DistanceX", 10, 2, -1, 1, 278.887882),
    Sketcher.Constraint("DistanceX", 4, 2, -1, 1, 133.016706),
])
sketch10.setExpression("Constraints[39]", "Params.sketch10_radius")
sketch10.setExpression("Constraints[40]", "Params.sketch10_radius2")
sketch10.setExpression("Constraints[41]", "Params.sketch10_width")
sketch10.setExpression("Constraints[42]", "Params.sketch10_width2")
pocket9 = body.newObject("PartDesign::Pocket", "Pocket008")
pocket9.Profile = sketch10
pocket9.Type = "ThroughAll"
pocket9.Reversed = True

sketch11 = body.newObject("Sketcher::SketchObject", "Sketch010")
sketch11.AttachmentSupport = (doc.getObject("XY_Plane"), [""])
sketch11.MapMode = "FlatFace"
sketch11.addGeometry([
    Part.LineSegment(V(-292, -10, 0), V(-292, -70, 0)),
    Part.LineSegment(V(-292, -70, 0), V(-300, -65, 0)),
    Part.LineSegment(V(-300, -65, 0), V(-300, -15, 0)),
    Part.LineSegment(V(-300, -15, 0), V(-292, -10, 0)),
], False)
sketch11.addConstraint([
    Sketcher.Constraint("Coincident", 0, 2, 1, 1),
    Sketcher.Constraint("Coincident", 1, 2, 2, 1),
    Sketcher.Constraint("Coincident", 2, 2, 3, 1),
    Sketcher.Constraint("Coincident", 3, 2, 0, 1),
    Sketcher.Constraint("Vertical", 0),
    Sketcher.Constraint("Vertical", 2),
    Sketcher.Constraint("Equal", 1, 3),
    Sketcher.Constraint("DistanceY", 2, 1, 2, 2, 50.0),
    Sketcher.Constraint("Angle", 1, Q("150 deg")),
    Sketcher.Constraint("DistanceY", 1, 2, -1, 1, 65.0),
    Sketcher.Constraint("DistanceX", 1, 2, 0, 2, 8.0),
    Sketcher.Constraint("DistanceX", 0, 2, -1, 1, 291.980762),
])
sketch11.setExpression("Constraints[7]", "Params.sketch11_height")
pocket10 = body.newObject("PartDesign::Pocket", "Pocket009")
pocket10.Profile = sketch11
pocket10.Type = "ThroughAll"
pocket10.Reversed = True

sketch12 = body.newObject("Sketcher::SketchObject", "Sketch011")
sketch12.AttachmentSupport = (doc.getObject("XY_Plane"), [""])
sketch12.MapMode = "FlatFace"
sketch12.addGeometry([
    Part.LineSegment(V(-49, -72, 0), V(-41, -80, 0)),
    Part.LineSegment(V(-41, -80, 0), V(-107, -80, 0)),
    Part.LineSegment(V(-107, -80, 0), V(-99, -72, 0)),
    Part.LineSegment(V(-99, -72, 0), V(-49, -72, 0)),
], False)
sketch12.addConstraint([
    Sketcher.Constraint("Coincident", 0, 2, 1, 1),
    Sketcher.Constraint("Coincident", 1, 2, 2, 1),
    Sketcher.Constraint("Coincident", 2, 2, 3, 1),
    Sketcher.Constraint("Coincident", 3, 2, 0, 1),
    Sketcher.Constraint("Horizontal", 1),
    Sketcher.Constraint("Horizontal", 3),
    Sketcher.Constraint("Perpendicular", 0, 2),
    Sketcher.Constraint("Equal", 0, 2),
    Sketcher.Constraint("DistanceX", 3, 1, 3, 2, 50.0),
    Sketcher.Constraint("DistanceX", 1, 2, 1, 1, 66.435414),
    Sketcher.Constraint("DistanceY", 0, 2, -1, 1, 80.44994),
    Sketcher.Constraint("DistanceX", 1, 2, -1, 1, 107.43909),
])
sketch12.setExpression("Constraints[8]", "Params.sketch12_width")
pocket11 = body.newObject("PartDesign::Pocket", "Pocket010")
pocket11.Profile = sketch12
pocket11.Type = "ThroughAll"
pocket11.Reversed = True
doc.recompute()

fillet2 = body.newObject("PartDesign::Fillet", "Fillet001")
fillet2.Base = (pocket11, edges_at(pocket11, [
    (-273.221, -80.45, 3.5),
    (-274, 0, 3.5),
    (-291.981, -69.619, 3.5),
    (-291.981, -10.381, 3.5),
]))
fillet2.setExpression("Radius", "Params.fillet2_radius")
doc.recompute()

fillet3 = body.newObject("PartDesign::Fillet", "Fillet002")
fillet3.Base = (fillet2, edges_at(fillet2, [
    (-138.158, -80.45, 3.5),
    (-163.189, -55.418, 3.5),
    (-218.189, -55.418, 3.5),
    (-243.221, -80.45, 3.5),
    (-107.439, -80.45, 3.5),
    (-41.004, -80.45, 3.5),
    (-49.221, -72.232, 3.5),
    (-99.221, -72.232, 3.5),
]))
fillet3.setExpression("Radius", "Params.fillet3_radius")

doc.recompute()
